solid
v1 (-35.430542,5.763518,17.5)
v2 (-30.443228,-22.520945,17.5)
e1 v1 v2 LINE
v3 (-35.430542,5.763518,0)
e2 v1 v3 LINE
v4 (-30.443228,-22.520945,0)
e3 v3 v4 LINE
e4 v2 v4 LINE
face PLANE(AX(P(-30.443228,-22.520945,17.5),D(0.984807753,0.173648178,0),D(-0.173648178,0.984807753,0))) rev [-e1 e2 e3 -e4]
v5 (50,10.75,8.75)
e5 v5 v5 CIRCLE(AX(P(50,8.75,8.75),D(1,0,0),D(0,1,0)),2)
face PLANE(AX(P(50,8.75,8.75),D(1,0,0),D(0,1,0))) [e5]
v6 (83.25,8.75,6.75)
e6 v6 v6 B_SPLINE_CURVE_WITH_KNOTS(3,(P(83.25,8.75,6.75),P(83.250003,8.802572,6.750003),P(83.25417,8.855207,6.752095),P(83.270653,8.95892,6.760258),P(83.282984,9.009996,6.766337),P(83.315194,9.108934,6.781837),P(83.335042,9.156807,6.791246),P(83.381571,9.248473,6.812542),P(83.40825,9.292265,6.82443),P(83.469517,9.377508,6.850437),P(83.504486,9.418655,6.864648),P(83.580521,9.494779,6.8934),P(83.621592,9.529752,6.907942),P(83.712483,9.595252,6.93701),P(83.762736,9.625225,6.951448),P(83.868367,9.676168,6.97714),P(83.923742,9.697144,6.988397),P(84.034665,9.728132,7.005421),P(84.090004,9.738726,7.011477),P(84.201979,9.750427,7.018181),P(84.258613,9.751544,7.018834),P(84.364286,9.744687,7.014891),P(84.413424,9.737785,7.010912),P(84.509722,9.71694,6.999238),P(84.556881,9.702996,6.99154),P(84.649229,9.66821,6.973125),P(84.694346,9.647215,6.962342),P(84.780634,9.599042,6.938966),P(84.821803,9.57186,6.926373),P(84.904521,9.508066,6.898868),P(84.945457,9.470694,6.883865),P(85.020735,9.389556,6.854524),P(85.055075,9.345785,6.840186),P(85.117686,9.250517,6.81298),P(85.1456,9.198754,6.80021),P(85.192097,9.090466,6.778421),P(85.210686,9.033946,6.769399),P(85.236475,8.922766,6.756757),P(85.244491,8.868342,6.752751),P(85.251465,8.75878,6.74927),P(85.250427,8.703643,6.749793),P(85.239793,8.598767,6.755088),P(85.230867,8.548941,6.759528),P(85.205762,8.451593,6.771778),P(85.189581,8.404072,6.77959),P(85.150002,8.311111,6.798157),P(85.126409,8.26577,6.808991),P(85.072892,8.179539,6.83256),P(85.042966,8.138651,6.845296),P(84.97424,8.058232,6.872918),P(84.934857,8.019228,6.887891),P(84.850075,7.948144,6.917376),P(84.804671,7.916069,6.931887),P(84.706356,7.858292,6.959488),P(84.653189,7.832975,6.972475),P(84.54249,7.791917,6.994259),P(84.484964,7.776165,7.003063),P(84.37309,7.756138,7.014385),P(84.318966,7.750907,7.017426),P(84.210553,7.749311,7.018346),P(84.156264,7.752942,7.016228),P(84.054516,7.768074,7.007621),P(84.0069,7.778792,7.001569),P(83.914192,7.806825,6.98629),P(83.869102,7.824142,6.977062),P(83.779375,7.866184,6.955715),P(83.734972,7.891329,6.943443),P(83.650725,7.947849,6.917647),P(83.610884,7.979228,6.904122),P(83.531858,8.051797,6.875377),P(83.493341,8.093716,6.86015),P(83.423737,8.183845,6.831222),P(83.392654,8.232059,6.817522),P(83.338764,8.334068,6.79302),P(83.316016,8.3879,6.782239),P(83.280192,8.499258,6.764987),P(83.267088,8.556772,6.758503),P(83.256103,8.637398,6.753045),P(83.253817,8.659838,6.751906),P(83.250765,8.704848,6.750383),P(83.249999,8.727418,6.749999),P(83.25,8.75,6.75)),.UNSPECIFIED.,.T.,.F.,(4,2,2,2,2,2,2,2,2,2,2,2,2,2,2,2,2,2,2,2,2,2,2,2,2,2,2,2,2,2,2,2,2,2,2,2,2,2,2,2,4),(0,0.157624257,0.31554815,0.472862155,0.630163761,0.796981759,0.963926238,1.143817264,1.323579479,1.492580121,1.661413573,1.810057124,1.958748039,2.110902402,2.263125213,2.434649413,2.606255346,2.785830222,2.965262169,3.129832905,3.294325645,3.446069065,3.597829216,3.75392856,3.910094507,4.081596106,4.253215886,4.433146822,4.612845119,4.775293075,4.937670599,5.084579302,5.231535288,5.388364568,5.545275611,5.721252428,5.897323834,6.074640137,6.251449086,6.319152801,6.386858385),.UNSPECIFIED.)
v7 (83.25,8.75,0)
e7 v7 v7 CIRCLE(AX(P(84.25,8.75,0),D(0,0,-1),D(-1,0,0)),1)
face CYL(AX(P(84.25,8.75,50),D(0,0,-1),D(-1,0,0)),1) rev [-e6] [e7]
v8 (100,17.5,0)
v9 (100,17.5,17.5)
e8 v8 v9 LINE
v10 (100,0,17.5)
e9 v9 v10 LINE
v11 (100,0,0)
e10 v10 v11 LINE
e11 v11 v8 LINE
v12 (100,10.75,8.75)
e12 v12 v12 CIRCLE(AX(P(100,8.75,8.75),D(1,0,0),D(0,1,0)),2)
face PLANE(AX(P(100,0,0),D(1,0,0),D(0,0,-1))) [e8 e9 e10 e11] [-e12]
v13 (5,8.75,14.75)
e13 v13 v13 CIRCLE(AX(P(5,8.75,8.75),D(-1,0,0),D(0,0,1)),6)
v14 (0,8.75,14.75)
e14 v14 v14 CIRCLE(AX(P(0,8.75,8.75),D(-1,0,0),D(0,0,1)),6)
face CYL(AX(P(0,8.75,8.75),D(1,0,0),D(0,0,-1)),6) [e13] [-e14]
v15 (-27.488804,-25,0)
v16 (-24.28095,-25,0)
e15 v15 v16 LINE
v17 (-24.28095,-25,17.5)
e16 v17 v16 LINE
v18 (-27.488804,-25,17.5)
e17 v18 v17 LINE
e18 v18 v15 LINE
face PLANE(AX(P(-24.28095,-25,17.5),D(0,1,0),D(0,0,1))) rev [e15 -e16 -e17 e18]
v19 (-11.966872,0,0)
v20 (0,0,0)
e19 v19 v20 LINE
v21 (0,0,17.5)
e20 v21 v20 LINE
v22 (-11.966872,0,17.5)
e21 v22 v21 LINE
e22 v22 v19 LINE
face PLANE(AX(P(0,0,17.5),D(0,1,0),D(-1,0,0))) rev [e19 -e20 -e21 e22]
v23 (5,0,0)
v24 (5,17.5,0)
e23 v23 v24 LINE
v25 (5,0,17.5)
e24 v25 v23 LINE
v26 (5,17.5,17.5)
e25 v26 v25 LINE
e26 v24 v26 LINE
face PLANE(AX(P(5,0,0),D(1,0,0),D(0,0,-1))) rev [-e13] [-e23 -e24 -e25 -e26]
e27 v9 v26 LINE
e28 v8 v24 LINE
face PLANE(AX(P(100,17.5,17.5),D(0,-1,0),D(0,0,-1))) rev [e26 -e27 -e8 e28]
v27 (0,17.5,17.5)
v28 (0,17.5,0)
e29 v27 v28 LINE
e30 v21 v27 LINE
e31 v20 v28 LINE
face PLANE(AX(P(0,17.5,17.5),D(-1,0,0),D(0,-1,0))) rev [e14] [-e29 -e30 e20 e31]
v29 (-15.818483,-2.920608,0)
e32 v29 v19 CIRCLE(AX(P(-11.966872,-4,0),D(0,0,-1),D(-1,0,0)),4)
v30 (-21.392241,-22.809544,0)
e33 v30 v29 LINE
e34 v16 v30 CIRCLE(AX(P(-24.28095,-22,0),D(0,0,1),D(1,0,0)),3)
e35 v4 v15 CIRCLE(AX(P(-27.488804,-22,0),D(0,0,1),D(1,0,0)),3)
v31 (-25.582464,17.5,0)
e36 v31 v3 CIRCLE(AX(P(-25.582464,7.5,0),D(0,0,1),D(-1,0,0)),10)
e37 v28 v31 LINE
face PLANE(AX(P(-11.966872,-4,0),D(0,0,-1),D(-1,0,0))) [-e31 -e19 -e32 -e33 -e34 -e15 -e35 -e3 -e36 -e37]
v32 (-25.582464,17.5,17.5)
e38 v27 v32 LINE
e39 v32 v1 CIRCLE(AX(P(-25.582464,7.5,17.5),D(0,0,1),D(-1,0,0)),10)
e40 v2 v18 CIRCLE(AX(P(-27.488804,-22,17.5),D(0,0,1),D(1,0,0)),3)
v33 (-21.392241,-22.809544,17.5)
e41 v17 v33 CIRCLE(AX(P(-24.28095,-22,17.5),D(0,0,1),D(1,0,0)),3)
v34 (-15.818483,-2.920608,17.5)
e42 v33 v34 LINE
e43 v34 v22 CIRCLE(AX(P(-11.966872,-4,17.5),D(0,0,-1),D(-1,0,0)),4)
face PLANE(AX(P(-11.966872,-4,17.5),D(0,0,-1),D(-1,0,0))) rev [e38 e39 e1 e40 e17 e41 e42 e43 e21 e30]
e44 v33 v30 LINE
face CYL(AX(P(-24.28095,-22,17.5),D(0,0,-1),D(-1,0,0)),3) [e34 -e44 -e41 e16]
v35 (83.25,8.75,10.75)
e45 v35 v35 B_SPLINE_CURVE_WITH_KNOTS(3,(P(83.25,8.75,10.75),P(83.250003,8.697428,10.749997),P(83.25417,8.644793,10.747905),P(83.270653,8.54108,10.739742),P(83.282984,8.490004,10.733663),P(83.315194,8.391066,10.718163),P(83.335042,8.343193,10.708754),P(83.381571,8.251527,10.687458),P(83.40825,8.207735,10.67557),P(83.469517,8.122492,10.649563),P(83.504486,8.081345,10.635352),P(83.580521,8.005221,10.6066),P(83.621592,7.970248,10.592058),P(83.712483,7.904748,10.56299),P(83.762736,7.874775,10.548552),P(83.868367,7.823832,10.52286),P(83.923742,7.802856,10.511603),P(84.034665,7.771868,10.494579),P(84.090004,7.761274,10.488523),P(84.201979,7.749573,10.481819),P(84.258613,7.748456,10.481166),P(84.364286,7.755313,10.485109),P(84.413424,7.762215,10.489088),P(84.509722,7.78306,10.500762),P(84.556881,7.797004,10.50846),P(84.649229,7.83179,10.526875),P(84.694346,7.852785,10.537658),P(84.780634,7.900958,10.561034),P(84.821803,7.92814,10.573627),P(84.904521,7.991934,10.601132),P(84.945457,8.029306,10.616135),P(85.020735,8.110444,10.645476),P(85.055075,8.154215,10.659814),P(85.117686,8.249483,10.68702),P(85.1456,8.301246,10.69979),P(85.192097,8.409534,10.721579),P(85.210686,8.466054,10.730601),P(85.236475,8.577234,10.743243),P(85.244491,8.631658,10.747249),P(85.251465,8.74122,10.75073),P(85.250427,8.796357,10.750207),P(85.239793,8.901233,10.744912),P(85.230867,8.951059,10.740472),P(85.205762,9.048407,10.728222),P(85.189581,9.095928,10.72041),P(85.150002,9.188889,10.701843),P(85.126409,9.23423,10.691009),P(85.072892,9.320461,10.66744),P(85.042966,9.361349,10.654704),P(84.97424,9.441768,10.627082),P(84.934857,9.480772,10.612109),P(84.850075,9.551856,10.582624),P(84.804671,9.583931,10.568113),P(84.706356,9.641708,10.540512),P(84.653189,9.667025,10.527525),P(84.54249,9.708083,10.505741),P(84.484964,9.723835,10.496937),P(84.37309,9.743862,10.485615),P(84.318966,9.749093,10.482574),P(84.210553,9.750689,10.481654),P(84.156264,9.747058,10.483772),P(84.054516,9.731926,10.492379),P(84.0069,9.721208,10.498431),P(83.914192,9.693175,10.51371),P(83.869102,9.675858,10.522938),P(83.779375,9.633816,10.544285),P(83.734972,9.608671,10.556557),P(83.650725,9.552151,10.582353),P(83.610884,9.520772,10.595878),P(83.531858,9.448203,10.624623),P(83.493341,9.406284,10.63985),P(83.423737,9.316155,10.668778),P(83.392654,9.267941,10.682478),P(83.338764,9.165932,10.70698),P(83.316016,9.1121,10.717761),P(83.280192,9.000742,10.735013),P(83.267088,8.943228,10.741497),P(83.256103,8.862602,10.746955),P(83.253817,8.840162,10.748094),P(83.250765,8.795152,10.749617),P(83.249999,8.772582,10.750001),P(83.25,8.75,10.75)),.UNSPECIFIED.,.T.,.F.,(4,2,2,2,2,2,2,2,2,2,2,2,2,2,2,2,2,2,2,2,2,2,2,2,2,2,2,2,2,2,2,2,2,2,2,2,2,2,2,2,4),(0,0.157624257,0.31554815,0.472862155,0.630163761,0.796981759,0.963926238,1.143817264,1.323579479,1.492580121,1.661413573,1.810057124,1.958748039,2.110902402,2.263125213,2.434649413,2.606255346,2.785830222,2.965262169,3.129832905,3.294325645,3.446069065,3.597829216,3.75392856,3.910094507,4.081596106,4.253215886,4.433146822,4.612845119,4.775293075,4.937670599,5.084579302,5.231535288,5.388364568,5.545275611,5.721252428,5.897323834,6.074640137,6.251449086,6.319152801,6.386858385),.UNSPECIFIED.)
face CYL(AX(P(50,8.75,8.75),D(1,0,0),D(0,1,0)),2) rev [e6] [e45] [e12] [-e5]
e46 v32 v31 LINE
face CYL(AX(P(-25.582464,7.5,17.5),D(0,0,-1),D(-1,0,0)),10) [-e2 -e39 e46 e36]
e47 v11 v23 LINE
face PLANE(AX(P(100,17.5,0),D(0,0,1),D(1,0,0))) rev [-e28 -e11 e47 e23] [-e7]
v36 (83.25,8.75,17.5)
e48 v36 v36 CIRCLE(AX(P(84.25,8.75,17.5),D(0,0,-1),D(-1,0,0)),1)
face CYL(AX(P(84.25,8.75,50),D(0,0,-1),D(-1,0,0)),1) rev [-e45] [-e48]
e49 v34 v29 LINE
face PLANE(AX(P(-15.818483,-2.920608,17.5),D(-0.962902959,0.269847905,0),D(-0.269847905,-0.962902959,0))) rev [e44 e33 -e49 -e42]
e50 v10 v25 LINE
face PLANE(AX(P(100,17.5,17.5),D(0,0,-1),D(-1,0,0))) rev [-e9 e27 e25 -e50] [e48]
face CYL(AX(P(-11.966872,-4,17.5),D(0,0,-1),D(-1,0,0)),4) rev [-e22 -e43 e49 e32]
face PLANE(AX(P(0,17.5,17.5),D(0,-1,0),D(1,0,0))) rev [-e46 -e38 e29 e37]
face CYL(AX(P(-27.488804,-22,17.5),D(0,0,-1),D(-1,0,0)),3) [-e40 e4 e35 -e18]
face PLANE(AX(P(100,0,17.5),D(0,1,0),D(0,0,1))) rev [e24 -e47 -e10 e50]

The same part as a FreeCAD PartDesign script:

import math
import FreeCAD as App
import Part
import Sketcher
Q = App.Units.Quantity


def add_polygon(sketch, points):
    """Adds a closed chain of lines whose ends are joined by coincident constraints."""
    first, n = sketch.GeometryCount, len(points)
    for a, b in zip(points, points[1:] + points[:1]):
        sketch.addGeometry(Part.LineSegment(App.Vector(*a, 0), App.Vector(*b, 0)), False)
    for i in range(n):
        sketch.addConstraint(Sketcher.Constraint("Coincident", first + i, 2, first + (i + 1) % n, 1))

doc = App.newDocument("Part")
params = doc.addObject("Spreadsheet::Sheet", "Params")
for row, (alias, value) in enumerate([
    ("sketch1_width", "17.5 mm"),
    ("pad1_length", "95 mm"),
    ("sketch2_diameter", "4 mm"),
    ("pocket1_length", "50 mm"),
    ("sketch3_diameter", "2 mm"),
    ("pocket2_length", "50 mm"),
    ("sketch4_diameter", "12 mm"),
    ("pad2_length", "5 mm"),
    ("sketch5_radius", "10 mm"),
    ("sketch5_radius2", "3 mm"),
    ("sketch5_radius3", "4 mm"),
    ("sketch5_height", "17.5 mm"),
    ("pad3_length", "17.5 mm"),
], start=1):
    params.set(f"A{row}", alias)
    params.set(f"B{row}", "=" + value)
    params.setAlias(f"B{row}", alias)

body = doc.addObject("PartDesign::Body", "Body")

sketch1 = body.newObject("Sketcher::SketchObject", "Sketch")
sketch1.AttachmentSupport = (doc.getObject("YZ_Plane"), [""])
sketch1.MapMode = "FlatFace"
sketch1.AttachmentOffset = App.Placement(App.Vector(0, 0, 5), App.Rotation())
add_polygon(sketch1, [(18, 18), (0, 18), (0, 0), (18, 0)])
sketch1.addConstraint(Sketcher.Constraint("Horizontal", 0))
sketch1.addConstraint(Sketcher.Constraint("Vertical", 1))
sketch1.addConstraint(Sketcher.Constraint("Horizontal", 2))
sketch1.addConstraint(Sketcher.Constraint("Vertical", 3))
sketch1.addConstraint(Sketcher.Constraint("Coincident", 1, 2, -1, 1))
sketch1.addConstraint(Sketcher.Constraint("Equal", 2, 1))
sketch1.addConstraint(Sketcher.Constraint("DistanceX", 0, 2, 0, 1, 17.5))
sketch1.setExpression("Constraints[10]", "Params.sketch1_width")
pad1 = body.newObject("PartDesign::Pad", "Pad")
pad1.Profile = sketch1
pad1.setExpression("Length", "Params.pad1_length")

sketch2 = body.newObject("Sketcher::SketchObject", "Sketch001")
sketch2.AttachmentSupport = (doc.getObject("YZ_Plane"), [""])
sketch2.MapMode = "FlatFace"
sketch2.AttachmentOffset = App.Placement(App.Vector(0, 0, 100), App.Rotation())
sketch2.addGeometry(Part.Circle(App.Vector(8.8, 8.8, 0), App.Vector(0, 0, 1), 2), False)
sketch2.addConstraint(Sketcher.Constraint("Diameter", 0, 4.0))
sketch2.addConstraint(Sketcher.Constraint("DistanceX", -1, 1, 0, 3, 8.75))
sketch2.addConstraint(Sketcher.Constraint("DistanceY", -1, 1, 0, 3, 8.75))
sketch2.setExpression("Constraints[0]", "Params.sketch2_diameter")
pocket1 = body.newObject("PartDesign::Pocket", "Pocket")
pocket1.Profile = sketch2
pocket1.setExpression("Length", "Params.pocket1_length")

sketch3 = body.newObject("Sketcher::SketchObject", "Sketch002")
sketch3.AttachmentSupport = (doc.getObject("XY_Plane"), [""])
sketch3.MapMode = "FlatFace"
sketch3.addGeometry(Part.Circle(App.Vector(84.2, 8.8, 0), App.Vector(0, 0, 1), 1), False)
sketch3.addConstraint(Sketcher.Constraint("Diameter", 0, 2.0))
sketch3.addConstraint(Sketcher.Constraint("DistanceX", -1, 1, 0, 3, 84.25))
sketch3.addConstraint(Sketcher.Constraint("DistanceY", -1, 1, 0, 3, 8.75))
sketch3.setExpression("Constraints[0]", "Params.sketch3_diameter")
pocket2 = body.newObject("PartDesign::Pocket", "Pocket001")
pocket2.Profile = sketch3
pocket2.setExpression("Length", "Params.pocket2_length")
pocket2.Reversed = True

sketch4 = body.newObject("Sketcher::SketchObject", "Sketch003")
sketch4.AttachmentSupport = (doc.getObject("YZ_Plane"), [""])
sketch4.MapMode = "FlatFace"
sketch4.AttachmentOffset = App.Placement(App.Vector(0, 0, 5), App.Rotation())
sketch4.addGeometry(Part.Circle(App.Vector(9, 9, 0), App.Vector(0, 0, 1), 6), False)
sketch4.addConstraint(Sketcher.Constraint("Diameter", 0, 12.0))
sketch4.addConstraint(Sketcher.Constraint("DistanceX", -1, 1, 0, 3, 8.75))
sketch4.addConstraint(Sketcher.Constraint("DistanceY", -1, 1, 0, 3, 8.75))
sketch4.setExpression("Constraints[0]", "Params.sketch4_diameter")
pad2 = body.newObject("PartDesign::Pad", "Pad001")
pad2.Profile = sketch4
pad2.setExpression("Length", "Params.pad2_length")
pad2.Reversed = True

sketch5 = body.newObject("Sketcher::SketchObject", "Sketch004")
sketch5.AttachmentSupport = (doc.getObject("XY_Plane"), [""])
sketch5.MapMode = "FlatFace"
sketch5.addGeometry(Part.LineSegment(App.Vector(0, 17.5, 0), App.Vector(-25.6, 17.5, 0)), False)
sketch5.addGeometry(Part.ArcOfCircle(Part.Circle(App.Vector(-25.6, 7.5, 0), App.Vector(0, 0, 1), 10), math.radians(90), math.radians(190)), False)
sketch5.addGeometry(Part.LineSegment(App.Vector(-35.4, 5.8, 0), App.Vector(-30.4, -22.5, 0)), False)
sketch5.addGeometry(Part.ArcOfCircle(Part.Circle(App.Vector(-27.5, -22, 0), App.Vector(0, 0, 1), 3), math.radians(-170), math.radians(-90)), False)
sketch5.addGeometry(Part.LineSegment(App.Vector(-27.5, -25, 0), App.Vector(-24.3, -25, 0)), False)
sketch5.addGeometry(Part.ArcOfCircle(Part.Circle(App.Vector(-24.3, -22, 0), App.Vector(0, 0, 1), 3), math.radians(-90), math.radians(-16)), False)
sketch5.addGeometry(Part.LineSegment(App.Vector(-21.4, -22.8, 0), App.Vector(-15.8, -2.9, 0)), False)
sketch5.addGeometry(Part.ArcOfCircle(Part.Circle(App.Vector(-12, -4, 0), App.Vector(0, 0, 1), 4), math.radians(90), math.radians(164)), False)
sketch5.addGeometry(Part.LineSegment(App.Vector(-12, 0, 0), App.Vector(0, 0, 0)), False)
sketch5.addGeometry(Part.LineSegment(App.Vector(0, 0, 0), App.Vector(0, 17.5, 0)), False)
sketch5.addConstraint(Sketcher.Constraint("Tangent", 0, 2, 1, 1))
sketch5.addConstraint(Sketcher.Constraint("Tangent", 1, 2, 2, 1))
sketch5.addConstraint(Sketcher.Constraint("Tangent", 2, 2, 3, 1))
sketch5.addConstraint(Sketcher.Constraint("Tangent", 3, 2, 4, 1))
sketch5.addConstraint(Sketcher.Constraint("Tangent", 4, 2, 5, 1))
sketch5.addConstraint(Sketcher.Constraint("Tangent", 5, 2, 6, 1))
sketch5.addConstraint(Sketcher.Constraint("Tangent", 6, 2, 7, 2))
sketch5.addConstraint(Sketcher.Constraint("Tangent", 7, 1, 8, 1))
sketch5.addConstraint(Sketcher.Constraint("Coincident", 8, 2, 9, 1))
sketch5.addConstraint(Sketcher.Constraint("Coincident", 9, 2, 0, 1))
sketch5.addConstraint(Sketcher.Constraint("Horizontal", 0))
sketch5.addConstraint(Sketcher.Constraint("Horizontal", 4))
sketch5.addConstraint(Sketcher.Constraint("Horizontal", 8))
sketch5.addConstraint(Sketcher.Constraint("Vertical", 9))
sketch5.addConstraint(Sketcher.Constraint("Coincident", 8, 2, -1, 1))
sketch5.addConstraint(Sketcher.Constraint("Equal", 3, 5))
sketch5.addConstraint(Sketcher.Constraint("Radius", 1, 10.0))
sketch5.addConstraint(Sketcher.Constraint("Radius", 3, 3.0))
sketch5.addConstraint(Sketcher.Constraint("Radius", 7, 4.0))
sketch5.addConstraint(Sketcher.Constraint("Angle", 2, Q("-80 deg")))
sketch5.addConstraint(Sketcher.Constraint("DistanceY", 9, 1, 9, 2, 17.5))
sketch5.addConstraint(Sketcher.Constraint("DistanceY", 3, 3, -1, 1, 22.0))
sketch5.addConstraint(Sketcher.Constraint("DistanceX", 8, 1, 8, 2, 11.966872))
sketch5.addConstraint(Sketcher.Constraint("DistanceY", 5, 2, 2, 2, 0.288599))
sketch5.addConstraint(Sketcher.Constraint("DistanceX", 0, 2, 0, 1, 25.582464))
sketch5.setExpression("Constraints[16]", "Params.sketch5_radius")
sketch5.setExpression("Constraints[17]", "Params.sketch5_radius2")
sketch5.setExpression("Constraints[18]", "Params.sketch5_radius3")
sketch5.setExpression("Constraints[20]", "Params.sketch5_height")
pad3 = body.newObject("PartDesign::Pad", "Pad002")
pad3.Profile = sketch5
pad3.setExpression("Length", "Params.pad3_length")

doc.recompute()
